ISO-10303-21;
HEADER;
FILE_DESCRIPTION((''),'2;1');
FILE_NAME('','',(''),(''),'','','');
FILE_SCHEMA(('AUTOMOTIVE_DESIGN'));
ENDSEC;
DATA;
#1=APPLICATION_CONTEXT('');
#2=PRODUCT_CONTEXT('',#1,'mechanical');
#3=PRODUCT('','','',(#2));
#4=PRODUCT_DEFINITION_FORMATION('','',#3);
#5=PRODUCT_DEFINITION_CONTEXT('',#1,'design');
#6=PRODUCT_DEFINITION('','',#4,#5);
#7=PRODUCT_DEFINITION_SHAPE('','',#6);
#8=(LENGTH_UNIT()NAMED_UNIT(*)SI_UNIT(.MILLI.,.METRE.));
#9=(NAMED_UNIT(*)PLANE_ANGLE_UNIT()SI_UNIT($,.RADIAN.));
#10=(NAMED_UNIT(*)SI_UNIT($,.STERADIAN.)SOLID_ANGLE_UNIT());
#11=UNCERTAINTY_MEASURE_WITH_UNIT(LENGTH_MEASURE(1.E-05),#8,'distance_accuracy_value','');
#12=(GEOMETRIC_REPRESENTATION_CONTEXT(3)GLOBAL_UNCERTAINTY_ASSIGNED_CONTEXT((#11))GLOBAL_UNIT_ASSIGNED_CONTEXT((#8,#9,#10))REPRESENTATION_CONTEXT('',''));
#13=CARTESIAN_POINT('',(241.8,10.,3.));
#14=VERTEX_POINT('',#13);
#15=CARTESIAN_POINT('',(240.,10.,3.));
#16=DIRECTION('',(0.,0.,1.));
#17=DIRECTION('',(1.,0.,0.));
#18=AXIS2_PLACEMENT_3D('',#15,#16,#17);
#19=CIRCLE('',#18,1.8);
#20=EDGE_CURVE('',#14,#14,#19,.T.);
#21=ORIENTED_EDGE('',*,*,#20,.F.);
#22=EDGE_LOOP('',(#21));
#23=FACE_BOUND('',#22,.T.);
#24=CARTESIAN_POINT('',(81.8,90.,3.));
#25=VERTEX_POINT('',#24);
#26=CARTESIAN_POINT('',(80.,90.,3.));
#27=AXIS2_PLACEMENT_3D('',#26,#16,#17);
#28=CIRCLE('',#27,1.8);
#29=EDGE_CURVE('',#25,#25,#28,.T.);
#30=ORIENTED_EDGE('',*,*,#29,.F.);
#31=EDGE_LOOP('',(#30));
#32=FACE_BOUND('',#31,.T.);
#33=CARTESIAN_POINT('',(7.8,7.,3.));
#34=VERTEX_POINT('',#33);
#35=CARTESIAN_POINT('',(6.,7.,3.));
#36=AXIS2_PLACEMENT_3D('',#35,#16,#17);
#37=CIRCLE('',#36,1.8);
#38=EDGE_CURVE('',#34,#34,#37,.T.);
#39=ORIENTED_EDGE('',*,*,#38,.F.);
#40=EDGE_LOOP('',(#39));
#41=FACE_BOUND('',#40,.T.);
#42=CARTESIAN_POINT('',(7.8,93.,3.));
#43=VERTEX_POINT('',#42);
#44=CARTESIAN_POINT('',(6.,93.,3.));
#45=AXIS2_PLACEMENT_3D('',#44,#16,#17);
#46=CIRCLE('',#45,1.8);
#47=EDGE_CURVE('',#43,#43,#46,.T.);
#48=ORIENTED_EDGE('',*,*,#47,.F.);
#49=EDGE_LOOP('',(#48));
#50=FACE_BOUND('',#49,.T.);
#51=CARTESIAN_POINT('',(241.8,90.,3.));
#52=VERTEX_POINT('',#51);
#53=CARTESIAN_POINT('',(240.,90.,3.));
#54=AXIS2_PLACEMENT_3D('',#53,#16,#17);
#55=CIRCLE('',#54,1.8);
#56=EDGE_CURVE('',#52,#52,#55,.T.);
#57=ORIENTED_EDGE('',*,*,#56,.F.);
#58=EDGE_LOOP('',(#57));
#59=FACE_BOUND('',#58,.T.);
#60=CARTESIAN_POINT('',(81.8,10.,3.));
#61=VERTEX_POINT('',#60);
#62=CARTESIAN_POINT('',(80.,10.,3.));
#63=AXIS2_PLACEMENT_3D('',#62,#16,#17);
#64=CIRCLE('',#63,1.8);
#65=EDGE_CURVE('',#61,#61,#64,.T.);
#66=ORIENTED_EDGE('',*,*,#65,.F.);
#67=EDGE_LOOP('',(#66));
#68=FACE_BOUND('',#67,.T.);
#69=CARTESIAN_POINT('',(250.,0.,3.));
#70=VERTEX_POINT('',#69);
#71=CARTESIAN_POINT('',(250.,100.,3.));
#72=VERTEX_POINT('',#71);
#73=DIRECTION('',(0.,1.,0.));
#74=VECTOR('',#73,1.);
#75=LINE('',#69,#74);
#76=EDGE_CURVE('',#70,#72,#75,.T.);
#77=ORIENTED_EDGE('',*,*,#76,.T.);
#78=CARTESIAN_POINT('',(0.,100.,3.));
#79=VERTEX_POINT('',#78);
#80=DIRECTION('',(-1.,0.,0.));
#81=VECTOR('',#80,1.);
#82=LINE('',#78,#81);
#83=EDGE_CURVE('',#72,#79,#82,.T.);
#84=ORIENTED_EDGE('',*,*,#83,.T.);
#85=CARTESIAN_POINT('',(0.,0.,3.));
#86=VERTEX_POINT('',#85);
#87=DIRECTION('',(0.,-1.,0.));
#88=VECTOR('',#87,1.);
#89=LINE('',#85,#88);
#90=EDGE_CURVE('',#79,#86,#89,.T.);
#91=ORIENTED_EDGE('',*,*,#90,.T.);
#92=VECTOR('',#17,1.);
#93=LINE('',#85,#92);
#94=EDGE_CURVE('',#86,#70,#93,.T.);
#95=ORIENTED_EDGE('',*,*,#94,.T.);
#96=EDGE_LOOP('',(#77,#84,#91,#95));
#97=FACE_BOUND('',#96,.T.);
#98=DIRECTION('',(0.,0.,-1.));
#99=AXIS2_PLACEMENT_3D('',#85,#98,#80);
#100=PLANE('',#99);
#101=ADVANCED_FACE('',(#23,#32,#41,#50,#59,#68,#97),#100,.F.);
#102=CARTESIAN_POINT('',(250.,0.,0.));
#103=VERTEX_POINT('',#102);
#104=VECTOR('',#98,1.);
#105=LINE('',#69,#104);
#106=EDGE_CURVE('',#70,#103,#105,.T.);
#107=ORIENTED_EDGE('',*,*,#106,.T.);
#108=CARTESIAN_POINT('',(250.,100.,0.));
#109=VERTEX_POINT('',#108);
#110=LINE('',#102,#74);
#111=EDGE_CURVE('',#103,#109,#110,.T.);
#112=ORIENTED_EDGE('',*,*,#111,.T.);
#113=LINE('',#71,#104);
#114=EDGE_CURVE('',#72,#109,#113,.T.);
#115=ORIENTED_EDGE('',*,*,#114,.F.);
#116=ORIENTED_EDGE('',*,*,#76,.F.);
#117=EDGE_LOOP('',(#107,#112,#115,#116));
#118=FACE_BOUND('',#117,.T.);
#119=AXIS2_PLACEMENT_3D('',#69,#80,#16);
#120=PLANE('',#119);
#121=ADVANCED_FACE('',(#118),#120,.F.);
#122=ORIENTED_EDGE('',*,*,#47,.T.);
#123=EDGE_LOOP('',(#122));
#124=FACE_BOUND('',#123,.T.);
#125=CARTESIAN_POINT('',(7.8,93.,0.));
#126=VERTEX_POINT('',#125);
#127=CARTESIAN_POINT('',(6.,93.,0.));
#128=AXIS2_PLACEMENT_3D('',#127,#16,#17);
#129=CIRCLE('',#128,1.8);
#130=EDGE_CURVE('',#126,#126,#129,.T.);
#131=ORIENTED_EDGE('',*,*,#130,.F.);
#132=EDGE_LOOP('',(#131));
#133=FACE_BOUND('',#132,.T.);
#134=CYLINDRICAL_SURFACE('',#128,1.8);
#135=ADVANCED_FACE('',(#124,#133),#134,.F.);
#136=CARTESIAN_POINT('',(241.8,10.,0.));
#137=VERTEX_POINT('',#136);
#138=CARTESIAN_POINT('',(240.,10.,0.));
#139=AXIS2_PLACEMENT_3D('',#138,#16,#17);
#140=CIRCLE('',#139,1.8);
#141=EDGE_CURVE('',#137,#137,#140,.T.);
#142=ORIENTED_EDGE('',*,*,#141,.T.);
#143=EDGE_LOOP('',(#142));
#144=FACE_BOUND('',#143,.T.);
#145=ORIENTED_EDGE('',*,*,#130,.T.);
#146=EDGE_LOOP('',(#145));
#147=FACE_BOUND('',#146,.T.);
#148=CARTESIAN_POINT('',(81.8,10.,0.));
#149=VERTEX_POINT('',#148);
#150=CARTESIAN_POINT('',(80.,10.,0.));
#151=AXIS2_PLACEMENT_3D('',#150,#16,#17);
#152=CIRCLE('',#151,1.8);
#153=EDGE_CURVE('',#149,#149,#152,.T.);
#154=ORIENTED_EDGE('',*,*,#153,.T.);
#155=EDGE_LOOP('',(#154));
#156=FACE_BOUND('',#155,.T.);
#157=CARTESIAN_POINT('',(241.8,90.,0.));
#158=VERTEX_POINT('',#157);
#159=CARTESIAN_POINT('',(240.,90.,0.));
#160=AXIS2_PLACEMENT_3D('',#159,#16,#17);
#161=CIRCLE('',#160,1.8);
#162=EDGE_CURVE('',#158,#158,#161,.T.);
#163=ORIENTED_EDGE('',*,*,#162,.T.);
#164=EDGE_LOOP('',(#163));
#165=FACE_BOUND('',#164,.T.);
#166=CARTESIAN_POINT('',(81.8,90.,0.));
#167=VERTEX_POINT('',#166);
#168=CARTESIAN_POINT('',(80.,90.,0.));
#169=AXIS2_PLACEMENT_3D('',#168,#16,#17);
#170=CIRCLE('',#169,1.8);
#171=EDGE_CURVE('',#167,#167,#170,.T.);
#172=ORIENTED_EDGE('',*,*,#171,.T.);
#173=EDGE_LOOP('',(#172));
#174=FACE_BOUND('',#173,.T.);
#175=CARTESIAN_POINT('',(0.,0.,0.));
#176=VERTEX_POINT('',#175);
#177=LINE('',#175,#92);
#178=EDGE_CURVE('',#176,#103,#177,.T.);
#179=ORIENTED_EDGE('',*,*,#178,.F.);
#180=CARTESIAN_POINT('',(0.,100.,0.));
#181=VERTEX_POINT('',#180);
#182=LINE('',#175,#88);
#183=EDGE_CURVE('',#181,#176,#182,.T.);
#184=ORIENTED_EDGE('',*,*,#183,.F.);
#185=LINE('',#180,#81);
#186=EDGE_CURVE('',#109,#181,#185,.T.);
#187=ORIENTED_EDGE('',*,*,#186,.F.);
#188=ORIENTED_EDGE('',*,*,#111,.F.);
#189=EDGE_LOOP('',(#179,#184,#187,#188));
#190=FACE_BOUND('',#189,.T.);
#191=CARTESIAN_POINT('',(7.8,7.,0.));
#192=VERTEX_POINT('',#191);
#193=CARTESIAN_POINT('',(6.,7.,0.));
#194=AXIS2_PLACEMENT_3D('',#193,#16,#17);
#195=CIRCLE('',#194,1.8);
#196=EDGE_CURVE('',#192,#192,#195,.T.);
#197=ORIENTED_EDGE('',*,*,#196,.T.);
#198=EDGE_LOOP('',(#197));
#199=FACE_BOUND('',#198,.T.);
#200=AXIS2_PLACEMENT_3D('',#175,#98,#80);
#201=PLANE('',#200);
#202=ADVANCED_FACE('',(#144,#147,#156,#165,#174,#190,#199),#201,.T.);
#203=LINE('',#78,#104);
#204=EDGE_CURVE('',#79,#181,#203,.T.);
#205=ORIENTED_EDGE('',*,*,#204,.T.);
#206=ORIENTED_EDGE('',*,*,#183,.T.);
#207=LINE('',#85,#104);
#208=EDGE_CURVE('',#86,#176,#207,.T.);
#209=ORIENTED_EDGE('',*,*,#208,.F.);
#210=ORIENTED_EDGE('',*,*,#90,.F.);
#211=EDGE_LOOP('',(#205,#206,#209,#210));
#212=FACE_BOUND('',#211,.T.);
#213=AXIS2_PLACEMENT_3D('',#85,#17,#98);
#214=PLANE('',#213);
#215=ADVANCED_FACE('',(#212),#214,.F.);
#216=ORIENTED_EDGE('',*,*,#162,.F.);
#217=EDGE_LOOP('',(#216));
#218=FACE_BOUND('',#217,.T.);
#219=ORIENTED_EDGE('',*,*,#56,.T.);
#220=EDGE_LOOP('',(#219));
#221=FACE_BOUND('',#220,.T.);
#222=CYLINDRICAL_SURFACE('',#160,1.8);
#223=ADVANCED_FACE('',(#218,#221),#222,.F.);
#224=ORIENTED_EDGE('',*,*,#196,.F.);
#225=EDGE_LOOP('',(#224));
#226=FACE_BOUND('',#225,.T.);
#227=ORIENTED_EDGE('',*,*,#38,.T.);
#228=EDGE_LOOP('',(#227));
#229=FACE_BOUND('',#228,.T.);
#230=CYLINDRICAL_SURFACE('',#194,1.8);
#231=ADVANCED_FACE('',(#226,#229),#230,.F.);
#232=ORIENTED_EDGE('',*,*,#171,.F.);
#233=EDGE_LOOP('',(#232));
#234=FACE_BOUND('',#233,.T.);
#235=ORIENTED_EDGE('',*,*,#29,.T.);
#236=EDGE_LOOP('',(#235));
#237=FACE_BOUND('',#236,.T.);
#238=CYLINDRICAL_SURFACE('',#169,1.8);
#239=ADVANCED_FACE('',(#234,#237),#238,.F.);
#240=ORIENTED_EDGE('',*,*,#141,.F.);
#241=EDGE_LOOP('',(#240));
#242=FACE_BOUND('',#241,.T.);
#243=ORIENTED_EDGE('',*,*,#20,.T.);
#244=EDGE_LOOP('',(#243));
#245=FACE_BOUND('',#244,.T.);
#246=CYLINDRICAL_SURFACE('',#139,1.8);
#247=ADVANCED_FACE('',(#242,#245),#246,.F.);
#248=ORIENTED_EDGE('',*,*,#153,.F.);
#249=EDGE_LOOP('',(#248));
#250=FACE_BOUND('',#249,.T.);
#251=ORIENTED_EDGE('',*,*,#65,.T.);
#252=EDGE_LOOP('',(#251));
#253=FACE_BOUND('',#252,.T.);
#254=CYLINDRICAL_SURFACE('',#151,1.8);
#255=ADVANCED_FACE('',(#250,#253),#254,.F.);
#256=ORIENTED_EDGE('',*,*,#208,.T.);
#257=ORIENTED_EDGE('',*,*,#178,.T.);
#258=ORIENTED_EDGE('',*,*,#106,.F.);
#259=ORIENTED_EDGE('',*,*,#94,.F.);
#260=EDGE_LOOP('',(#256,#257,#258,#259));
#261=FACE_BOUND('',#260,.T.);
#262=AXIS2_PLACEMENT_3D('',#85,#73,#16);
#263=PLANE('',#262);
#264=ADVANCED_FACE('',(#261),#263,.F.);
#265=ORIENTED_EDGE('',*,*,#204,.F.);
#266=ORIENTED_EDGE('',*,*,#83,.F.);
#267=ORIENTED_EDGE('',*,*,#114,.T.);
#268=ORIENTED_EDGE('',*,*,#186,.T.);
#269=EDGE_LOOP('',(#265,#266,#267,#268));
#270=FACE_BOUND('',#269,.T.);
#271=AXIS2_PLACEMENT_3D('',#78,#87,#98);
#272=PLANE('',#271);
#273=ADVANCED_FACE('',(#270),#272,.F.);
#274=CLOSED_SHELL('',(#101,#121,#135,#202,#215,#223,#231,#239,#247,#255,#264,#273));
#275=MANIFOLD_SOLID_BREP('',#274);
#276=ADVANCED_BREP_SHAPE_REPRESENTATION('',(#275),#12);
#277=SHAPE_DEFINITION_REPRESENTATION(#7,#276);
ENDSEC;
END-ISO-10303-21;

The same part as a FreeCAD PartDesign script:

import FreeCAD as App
import Part
import Sketcher


def add_polygon(sketch, points):
    """Adds a closed chain of lines whose ends are joined by coincident constraints."""
    first, n = sketch.GeometryCount, len(points)
    for a, b in zip(points, points[1:] + points[:1]):
        sketch.addGeometry(Part.LineSegment(App.Vector(*a, 0), App.Vector(*b, 0)), False)
    for i in range(n):
        sketch.addConstraint(Sketcher.Constraint("Coincident", first + i, 2, first + (i + 1) % n, 1))

doc = App.newDocument("Part")
body = doc.addObject("PartDesign::Body", "Body")

sketch1 = body.newObject("Sketcher::SketchObject", "Sketch")
sketch1.AttachmentSupport = (doc.getObject("XY_Plane"), [""])
sketch1.MapMode = "FlatFace"
add_polygon(sketch1, [(0, 100), (0, 0), (250, 0), (250, 100)])
sketch1.addConstraint(Sketcher.Constraint("Vertical", 0))
sketch1.addConstraint(Sketcher.Constraint("Horizontal", 1))
sketch1.addConstraint(Sketcher.Constraint("Vertical", 2))
sketch1.addConstraint(Sketcher.Constraint("Horizontal", 3))
sketch1.addConstraint(Sketcher.Constraint("Coincident", 0, 2, -1, 1))
sketch1.addConstraint(Sketcher.Constraint("DistanceX", 1, 1, 1, 2, 250.0))
sketch1.addConstraint(Sketcher.Constraint("DistanceY", 0, 2, 0, 1, 100.0))
pad1 = body.newObject("PartDesign::Pad", "Pad")
pad1.Profile = sketch1
pad1.Length = 3

sketch2 = body.newObject("Sketcher::SketchObject", "Sketch001")
sketch2.AttachmentSupport = (doc.getObject("XY_Plane"), [""])
sketch2.MapMode = "FlatFace"
sketch2.AttachmentOffset = App.Placement(App.Vector(0, 0, 3), App.Rotation())
sketch2.addGeometry(Part.Circle(App.Vector(6, 93, 0), App.Vector(0, 0, 1), 1.8), False)
sketch2.addGeometry(Part.Circle(App.Vector(80, 90, 0), App.Vector(0, 0, 1), 1.8), False)
sketch2.addGeometry(Part.Circle(App.Vector(240, 90, 0), App.Vector(0, 0, 1), 1.8), False)
sketch2.addGeometry(Part.Circle(App.Vector(240, 10, 0), App.Vector(0, 0, 1), 1.8), False)
sketch2.addGeometry(Part.Circle(App.Vector(80, 10, 0), App.Vector(0, 0, 1), 1.8), False)
sketch2.addGeometry(Part.Circle(App.Vector(6, 7, 0), App.Vector(0, 0, 1), 1.8), False)
sketch2.addConstraint(Sketcher.Constraint("Equal", 0, 1))
sketch2.addConstraint(Sketcher.Constraint("Equal", 1, 2))
sketch2.addConstraint(Sketcher.Constraint("Equal", 2, 3))
sketch2.addConstraint(Sketcher.Constraint("Equal", 3, 4))
sketch2.addConstraint(Sketcher.Constraint("Equal", 4, 5))
sketch2.addConstraint(Sketcher.Constraint("Horizontal", 1, 3, 2, 3))
sketch2.addConstraint(Sketcher.Constraint("Horizontal", 3, 3, 4, 3))
sketch2.addConstraint(Sketcher.Constraint("Vertical", 2, 3, 3, 3))
sketch2.addConstraint(Sketcher.Constraint("Vertical", 1, 3, 4, 3))
sketch2.addConstraint(Sketcher.Constraint("Vertical", 0, 3, 5, 3))
sketch2.addConstraint(Sketcher.Constraint("Diameter", 0, 3.6))
sketch2.addConstraint(Sketcher.Constraint("DistanceX", -1, 1, 0, 3, 6.0))
sketch2.addConstraint(Sketcher.Constraint("DistanceY", -1, 1, 0, 3, 93.0))
sketch2.addConstraint(Sketcher.Constraint("DistanceX", -1, 1, 1, 3, 80.0))
sketch2.addConstraint(Sketcher.Constraint("DistanceY", -1, 1, 1, 3, 90.0))
sketch2.addConstraint(Sketcher.Constraint("DistanceX", -1, 1, 2, 3, 240.0))
sketch2.addConstraint(Sketcher.Constraint("DistanceY", -1, 1, 3, 3, 10.0))
sketch2.addConstraint(Sketcher.Constraint("DistanceY", -1, 1, 5, 3, 7.0))
pocket1 = body.newObject("PartDesign::Pocket", "Pocket")
pocket1.Profile = sketch2
pocket1.Type = "ThroughAll"

doc.recompute()
